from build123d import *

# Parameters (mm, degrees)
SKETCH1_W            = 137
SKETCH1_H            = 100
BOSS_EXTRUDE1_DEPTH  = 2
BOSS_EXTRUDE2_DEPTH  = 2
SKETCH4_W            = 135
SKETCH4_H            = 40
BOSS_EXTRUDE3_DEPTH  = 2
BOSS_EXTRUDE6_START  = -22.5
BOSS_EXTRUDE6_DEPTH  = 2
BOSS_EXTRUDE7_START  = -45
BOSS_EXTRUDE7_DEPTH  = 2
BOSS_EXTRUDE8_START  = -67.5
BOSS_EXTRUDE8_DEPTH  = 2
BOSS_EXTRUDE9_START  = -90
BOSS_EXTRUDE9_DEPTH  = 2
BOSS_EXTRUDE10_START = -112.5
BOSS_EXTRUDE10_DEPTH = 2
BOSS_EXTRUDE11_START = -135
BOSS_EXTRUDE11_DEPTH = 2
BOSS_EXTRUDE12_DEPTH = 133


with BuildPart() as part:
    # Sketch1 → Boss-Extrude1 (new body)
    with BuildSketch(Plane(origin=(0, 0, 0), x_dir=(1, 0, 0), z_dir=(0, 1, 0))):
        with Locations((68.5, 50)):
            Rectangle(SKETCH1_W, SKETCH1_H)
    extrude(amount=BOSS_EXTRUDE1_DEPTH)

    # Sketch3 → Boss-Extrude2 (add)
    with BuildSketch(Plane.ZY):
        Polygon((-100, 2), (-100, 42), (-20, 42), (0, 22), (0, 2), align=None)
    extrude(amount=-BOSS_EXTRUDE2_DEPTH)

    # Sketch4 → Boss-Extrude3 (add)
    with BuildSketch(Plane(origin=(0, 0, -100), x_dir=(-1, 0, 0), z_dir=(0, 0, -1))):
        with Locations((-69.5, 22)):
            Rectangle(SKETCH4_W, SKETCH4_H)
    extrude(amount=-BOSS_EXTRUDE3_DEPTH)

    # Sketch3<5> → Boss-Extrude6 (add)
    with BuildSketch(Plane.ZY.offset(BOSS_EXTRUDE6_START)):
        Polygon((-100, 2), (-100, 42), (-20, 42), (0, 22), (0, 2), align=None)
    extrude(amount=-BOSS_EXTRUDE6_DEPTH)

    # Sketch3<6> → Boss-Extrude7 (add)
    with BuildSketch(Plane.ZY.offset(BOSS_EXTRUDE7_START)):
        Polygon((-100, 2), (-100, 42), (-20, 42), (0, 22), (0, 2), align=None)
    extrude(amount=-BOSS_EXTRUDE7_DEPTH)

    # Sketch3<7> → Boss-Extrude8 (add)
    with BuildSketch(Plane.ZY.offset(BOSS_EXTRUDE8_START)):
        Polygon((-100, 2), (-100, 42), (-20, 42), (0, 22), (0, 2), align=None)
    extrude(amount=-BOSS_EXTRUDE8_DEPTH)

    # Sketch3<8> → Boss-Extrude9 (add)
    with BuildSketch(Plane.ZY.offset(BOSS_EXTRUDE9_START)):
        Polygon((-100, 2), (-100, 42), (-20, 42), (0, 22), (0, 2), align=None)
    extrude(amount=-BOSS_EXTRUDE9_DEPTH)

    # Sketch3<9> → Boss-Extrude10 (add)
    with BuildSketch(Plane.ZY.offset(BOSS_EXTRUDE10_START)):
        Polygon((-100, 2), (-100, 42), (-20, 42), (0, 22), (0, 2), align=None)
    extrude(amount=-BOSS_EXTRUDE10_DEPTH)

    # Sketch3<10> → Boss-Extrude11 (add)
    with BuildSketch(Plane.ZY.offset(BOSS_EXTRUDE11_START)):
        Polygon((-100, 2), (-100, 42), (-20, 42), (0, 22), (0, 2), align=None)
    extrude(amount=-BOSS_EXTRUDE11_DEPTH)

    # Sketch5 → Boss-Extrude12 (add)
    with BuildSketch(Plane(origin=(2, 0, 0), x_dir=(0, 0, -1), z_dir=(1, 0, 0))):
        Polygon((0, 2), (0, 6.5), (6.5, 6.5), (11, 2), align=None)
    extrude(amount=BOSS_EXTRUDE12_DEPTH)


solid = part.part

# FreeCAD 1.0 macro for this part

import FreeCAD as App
import Part
import Sketcher
Q = App.Units.Quantity


def add_polygon(sketch, points):
    """Adds a closed chain of lines whose ends are joined by coincident constraints."""
    first, n = sketch.GeometryCount, len(points)
    for a, b in zip(points, points[1:] + points[:1]):
        sketch.addGeometry(Part.LineSegment(App.Vector(*a, 0), App.Vector(*b, 0)), False)
    for i in range(n):
        sketch.addConstraint(Sketcher.Constraint("Coincident", first + i, 2, first + (i + 1) % n, 1))

doc = App.newDocument("Part")
body = doc.addObject("PartDesign::Body", "Body")

# Sketch on XZ plane
sketch1 = body.newObject("Sketcher::SketchObject", "Sketch")
sketch1.AttachmentSupport = (doc.getObject("XZ_Plane"), [""])
sketch1.MapMode = "FlatFace"
add_polygon(sketch1, [(0, -100), (0, 0), (137, 0), (137, -100)])  # lines 0-3
sketch1.addConstraint([
    Sketcher.Constraint("Vertical", 0),
    Sketcher.Constraint("Horizontal", 1),
    Sketcher.Constraint("Vertical", 2),
    Sketcher.Constraint("Horizontal", 3),
    Sketcher.Constraint("Coincident", 0, 2, -1, 1),
    Sketcher.Constraint("DistanceX", 1, 1, 1, 2, Q("137 mm")),
    Sketcher.Constraint("DistanceY", 0, 1, 0, 2, Q("100 mm")),
])
pad1 = body.newObject("PartDesign::Pad", "Pad")
pad1.Profile = sketch1
pad1.Length = 2
pad1.Reversed = True

# Sketch on YZ plane
sketch2 = body.newObject("Sketcher::SketchObject", "Sketch001")
sketch2.AttachmentSupport = (doc.getObject("YZ_Plane"), [""])
sketch2.MapMode = "FlatFace"
add_polygon(sketch2, [(42, -100), (2, -100), (2, 0), (22, 0), (42, -20)])  # lines 0-4
sketch2.addConstraint([
    Sketcher.Constraint("Horizontal", 0),
    Sketcher.Constraint("Vertical", 1),
    Sketcher.Constraint("Horizontal", 2),
    Sketcher.Constraint("Vertical", 4),
    Sketcher.Constraint("PointOnObject", 1, 2, -1),
    Sketcher.Constraint("DistanceX", 0, 2, 0, 1, Q("40 mm")),
    Sketcher.Constraint("DistanceX", 2, 1, 2, 2, Q("20 mm")),
    Sketcher.Constraint("DistanceY", 1, 1, 1, 2, Q("100 mm")),
    Sketcher.Constraint("DistanceY", 4, 2, 4, 1, Q("80 mm")),
    Sketcher.Constraint("DistanceX", -1, 1, 0, 2, Q("2 mm")),
])
pad2 = body.newObject("PartDesign::Pad", "Pad001")
pad2.Profile = sketch2
pad2.Length = 2

# Sketch on XY plane
sketch3 = body.newObject("Sketcher::SketchObject", "Sketch002")
sketch3.AttachmentSupport = (doc.getObject("XY_Plane"), [""])
sketch3.MapMode = "FlatFace"
sketch3.AttachmentOffset = App.Placement(App.Vector(0, 0, -100), App.Rotation())
add_polygon(sketch3, [(137, 42), (137, 2), (2, 2), (2, 42)])  # lines 0-3
sketch3.addConstraint([
    Sketcher.Constraint("Vertical", 0),
    Sketcher.Constraint("Horizontal", 1),
    Sketcher.Constraint("Vertical", 2),
    Sketcher.Constraint("Horizontal", 3),
    Sketcher.Constraint("DistanceX", 1, 2, 1, 1, Q("135 mm")),
    Sketcher.Constraint("DistanceY", 0, 2, 0, 1, Q("40 mm")),
    Sketcher.Constraint("DistanceX", -1, 1, 0, 2, Q("137 mm")),
    Sketcher.Constraint("DistanceY", -1, 1, 0, 2, Q("2 mm")),
])
pad3 = body.newObject("PartDesign::Pad", "Pad002")
pad3.Profile = sketch3
pad3.Length = 2

# Sketch on YZ plane
sketch4 = body.newObject("Sketcher::SketchObject", "Sketch003")
sketch4.AttachmentSupport = (doc.getObject("YZ_Plane"), [""])
sketch4.MapMode = "FlatFace"
sketch4.AttachmentOffset = App.Placement(App.Vector(0, 0, 22.5), App.Rotation())
add_polygon(sketch4, [(42, -100), (2, -100), (2, 0), (22, 0), (42, -20)])  # lines 0-4
sketch4.addConstraint([
    Sketcher.Constraint("Horizontal", 0),
    Sketcher.Constraint("Vertical", 1),
    Sketcher.Constraint("Horizontal", 2),
    Sketcher.Constraint("Vertical", 4),
    Sketcher.Constraint("PointOnObject", 1, 2, -1),
    Sketcher.Constraint("DistanceX", 0, 2, 0, 1, Q("40 mm")),
    Sketcher.Constraint("DistanceX", 2, 1, 2, 2, Q("20 mm")),
    Sketcher.Constraint("DistanceY", 1, 1, 1, 2, Q("100 mm")),
    Sketcher.Constraint("DistanceY", 4, 2, 4, 1, Q("80 mm")),
    Sketcher.Constraint("DistanceX", -1, 1, 0, 2, Q("2 mm")),
])
pad4 = body.newObject("PartDesign::Pad", "Pad003")
pad4.Profile = sketch4
pad4.Length = 2

# Sketch on YZ plane
sketch5 = body.newObject("Sketcher::SketchObject", "Sketch004")
sketch5.AttachmentSupport = (doc.getObject("YZ_Plane"), [""])
sketch5.MapMode = "FlatFace"
sketch5.AttachmentOffset = App.Placement(App.Vector(0, 0, 45), App.Rotation())
add_polygon(sketch5, [(42, -100), (2, -100), (2, 0), (22, 0), (42, -20)])  # lines 0-4
sketch5.addConstraint([
    Sketcher.Constraint("Horizontal", 0),
    Sketcher.Constraint("Vertical", 1),
    Sketcher.Constraint("Horizontal", 2),
    Sketcher.Constraint("Vertical", 4),
    Sketcher.Constraint("PointOnObject", 1, 2, -1),
    Sketcher.Constraint("DistanceX", 0, 2, 0, 1, Q("40 mm")),
    Sketcher.Constraint("DistanceX", 2, 1, 2, 2, Q("20 mm")),
    Sketcher.Constraint("DistanceY", 1, 1, 1, 2, Q("100 mm")),
    Sketcher.Constraint("DistanceY", 4, 2, 4, 1, Q("80 mm")),
    Sketcher.Constraint("DistanceX", -1, 1, 0, 2, Q("2 mm")),
])
pad5 = body.newObject("PartDesign::Pad", "Pad004")
pad5.Profile = sketch5
pad5.Length = 2

# Sketch on YZ plane
sketch6 = body.newObject("Sketcher::SketchObject", "Sketch005")
sketch6.AttachmentSupport = (doc.getObject("YZ_Plane"), [""])
sketch6.MapMode = "FlatFace"
sketch6.AttachmentOffset = App.Placement(App.Vector(0, 0, 67.5), App.Rotation())
add_polygon(sketch6, [(42, -100), (2, -100), (2, 0), (22, 0), (42, -20)])  # lines 0-4
sketch6.addConstraint([
    Sketcher.Constraint("Horizontal", 0),
    Sketcher.Constraint("Vertical", 1),
    Sketcher.Constraint("Horizontal", 2),
    Sketcher.Constraint("Vertical", 4),
    Sketcher.Constraint("PointOnObject", 1, 2, -1),
    Sketcher.Constraint("DistanceX", 0, 2, 0, 1, Q("40 mm")),
    Sketcher.Constraint("DistanceX", 2, 1, 2, 2, Q("20 mm")),
    Sketcher.Constraint("DistanceY", 1, 1, 1, 2, Q("100 mm")),
    Sketcher.Constraint("DistanceY", 4, 2, 4, 1, Q("80 mm")),
    Sketcher.Constraint("DistanceX", -1, 1, 0, 2, Q("2 mm")),
])
pad6 = body.newObject("PartDesign::Pad", "Pad005")
pad6.Profile = sketch6
pad6.Length = 2

# Sketch on YZ plane
sketch7 = body.newObject("Sketcher::SketchObject", "Sketch006")
sketch7.AttachmentSupport = (doc.getObject("YZ_Plane"), [""])
sketch7.MapMode = "FlatFace"
sketch7.AttachmentOffset = App.Placement(App.Vector(0, 0, 90), App.Rotation())
add_polygon(sketch7, [(42, -100), (2, -100), (2, 0), (22, 0), (42, -20)])  # lines 0-4
sketch7.addConstraint([
    Sketcher.Constraint("Horizontal", 0),
    Sketcher.Constraint("Vertical", 1),
    Sketcher.Constraint("Horizontal", 2),
    Sketcher.Constraint("Vertical", 4),
    Sketcher.Constraint("PointOnObject", 1, 2, -1),
    Sketcher.Constraint("DistanceX", 0, 2, 0, 1, Q("40 mm")),
    Sketcher.Constraint("DistanceX", 2, 1, 2, 2, Q("20 mm")),
    Sketcher.Constraint("DistanceY", 1, 1, 1, 2, Q("100 mm")),
    Sketcher.Constraint("DistanceY", 4, 2, 4, 1, Q("80 mm")),
    Sketcher.Constraint("DistanceX", -1, 1, 0, 2, Q("2 mm")),
])
pad7 = body.newObject("PartDesign::Pad", "Pad006")
pad7.Profile = sketch7
pad7.Length = 2

# Sketch on YZ plane
sketch8 = body.newObject("Sketcher::SketchObject", "Sketch007")
sketch8.AttachmentSupport = (doc.getObject("YZ_Plane"), [""])
sketch8.MapMode = "FlatFace"
sketch8.AttachmentOffset = App.Placement(App.Vector(0, 0, 112.5), App.Rotation())
add_polygon(sketch8, [(42, -100), (2, -100), (2, 0), (22, 0), (42, -20)])  # lines 0-4
sketch8.addConstraint([
    Sketcher.Constraint("Horizontal", 0),
    Sketcher.Constraint("Vertical", 1),
    Sketcher.Constraint("Horizontal", 2),
    Sketcher.Constraint("Vertical", 4),
    Sketcher.Constraint("PointOnObject", 1, 2, -1),
    Sketcher.Constraint("DistanceX", 0, 2, 0, 1, Q("40 mm")),
    Sketcher.Constraint("DistanceX", 2, 1, 2, 2, Q("20 mm")),
    Sketcher.Constraint("DistanceY", 1, 1, 1, 2, Q("100 mm")),
    Sketcher.Constraint("DistanceY", 4, 2, 4, 1, Q("80 mm")),
    Sketcher.Constraint("DistanceX", -1, 1, 0, 2, Q("2 mm")),
])
pad8 = body.newObject("PartDesign::Pad", "Pad007")
pad8.Profile = sketch8
pad8.Length = 2

# Sketch on YZ plane
sketch9 = body.newObject("Sketcher::SketchObject", "Sketch008")
sketch9.AttachmentSupport = (doc.getObject("YZ_Plane"), [""])
sketch9.MapMode = "FlatFace"
sketch9.AttachmentOffset = App.Placement(App.Vector(0, 0, 135), App.Rotation())
add_polygon(sketch9, [(42, -100), (2, -100), (2, 0), (22, 0), (42, -20)])  # lines 0-4
sketch9.addConstraint([
    Sketcher.Constraint("Horizontal", 0),
    Sketcher.Constraint("Vertical", 1),
    Sketcher.Constraint("Horizontal", 2),
    Sketcher.Constraint("Vertical", 4),
    Sketcher.Constraint("PointOnObject", 1, 2, -1),
    Sketcher.Constraint("DistanceX", 0, 2, 0, 1, Q("40 mm")),
    Sketcher.Constraint("DistanceX", 2, 1, 2, 2, Q("20 mm")),
    Sketcher.Constraint("DistanceY", 1, 1, 1, 2, Q("100 mm")),
    Sketcher.Constraint("DistanceY", 4, 2, 4, 1, Q("80 mm")),
    Sketcher.Constraint("DistanceX", -1, 1, 0, 2, Q("2 mm")),
])
pad9 = body.newObject("PartDesign::Pad", "Pad008")
pad9.Profile = sketch9
pad9.Length = 2

# Sketch on YZ plane
sketch10 = body.newObject("Sketcher::SketchObject", "Sketch009")
sketch10.AttachmentSupport = (doc.getObject("YZ_Plane"), [""])
sketch10.MapMode = "FlatFace"
sketch10.AttachmentOffset = App.Placement(App.Vector(0, 0, 2), App.Rotation())
add_polygon(sketch10, [(6.5, 0), (2, 0), (2, -11), (6.5, -6.5)])  # lines 0-3
sketch10.addConstraint([
    Sketcher.Constraint("Horizontal", 0),
    Sketcher.Constraint("Vertical", 1),
    Sketcher.Constraint("Vertical", 3),
    Sketcher.Constraint("PointOnObject", 0, 2, -1),
    Sketcher.Constraint("DistanceY", 1, 2, 1, 1, Q("11 mm")),
    Sketcher.Constraint("Angle", 2, Q("45 deg")),
    Sketcher.Constraint("DistanceX", 0, 2, 0, 1, Q("4.5 mm")),
    Sketcher.Constraint("DistanceX", -1, 1, 0, 2, Q("2 mm")),
])
pad10 = body.newObject("PartDesign::Pad", "Pad009")
pad10.Profile = sketch10
pad10.Length = 133

doc.recompute()
